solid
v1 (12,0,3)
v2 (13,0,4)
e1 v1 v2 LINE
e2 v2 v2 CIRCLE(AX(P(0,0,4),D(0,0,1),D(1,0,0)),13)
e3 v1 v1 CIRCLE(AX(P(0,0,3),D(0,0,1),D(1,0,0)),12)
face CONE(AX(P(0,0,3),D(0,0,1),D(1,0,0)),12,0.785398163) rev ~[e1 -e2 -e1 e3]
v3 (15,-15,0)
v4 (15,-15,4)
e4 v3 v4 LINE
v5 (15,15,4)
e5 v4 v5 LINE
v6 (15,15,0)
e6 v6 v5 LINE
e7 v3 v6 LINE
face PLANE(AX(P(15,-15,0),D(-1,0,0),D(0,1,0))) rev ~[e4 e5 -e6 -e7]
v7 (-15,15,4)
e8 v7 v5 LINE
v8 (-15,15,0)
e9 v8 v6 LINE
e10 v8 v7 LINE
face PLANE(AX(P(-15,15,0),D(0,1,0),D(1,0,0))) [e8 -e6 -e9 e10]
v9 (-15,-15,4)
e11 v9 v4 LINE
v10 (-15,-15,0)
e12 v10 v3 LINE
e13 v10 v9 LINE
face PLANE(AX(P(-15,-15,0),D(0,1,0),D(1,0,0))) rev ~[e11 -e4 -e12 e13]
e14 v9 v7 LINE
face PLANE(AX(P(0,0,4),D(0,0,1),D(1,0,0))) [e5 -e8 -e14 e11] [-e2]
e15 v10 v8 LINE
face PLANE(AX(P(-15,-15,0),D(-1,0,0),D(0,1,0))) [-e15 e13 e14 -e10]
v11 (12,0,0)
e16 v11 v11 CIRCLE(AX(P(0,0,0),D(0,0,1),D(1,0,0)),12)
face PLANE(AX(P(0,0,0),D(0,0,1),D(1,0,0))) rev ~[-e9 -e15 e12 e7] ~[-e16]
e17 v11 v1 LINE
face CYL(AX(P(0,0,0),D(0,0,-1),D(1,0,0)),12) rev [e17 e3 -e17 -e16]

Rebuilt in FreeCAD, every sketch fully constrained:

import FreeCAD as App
import Part
import Sketcher
Q = App.Units.Quantity


def edges_at(feature, points):
    """Names of the edges that pass closest to the given points."""
    edges = feature.Shape.Edges
    near = lambda p: min(range(len(edges)), key=lambda i: edges[i].distToShape(Part.Vertex(*p))[0])
    return sorted({f"Edge{near(p) + 1}" for p in points})

doc = App.newDocument("Part")
body = doc.addObject("PartDesign::Body", "Body")

# Sketch on XY plane
sketch1 = doc.addObject("Sketcher::SketchObject", "Sketch")
body.addObject(sketch1)
sketch1.AttachmentSupport = (doc.XY_Plane, [""])
sketch1.MapMode = "FlatFace"
sketch1.addGeometry([
    Part.LineSegment(App.Vector(-15, 15, 0), App.Vector(-15, -15, 0)),  # 0
    Part.LineSegment(App.Vector(-15, -15, 0), App.Vector(15, -15, 0)),  # 1
    Part.LineSegment(App.Vector(15, -15, 0), App.Vector(15, 15, 0)),  # 2
    Part.LineSegment(App.Vector(15, 15, 0), App.Vector(-15, 15, 0)),  # 3
    Part.Circle(App.Vector(0, 0, 0), App.Vector(0, 0, 1), 12),  # 4
], False)
sketch1.addConstraint([
    Sketcher.Constraint("Coincident", 0, 2, 1, 1),
    Sketcher.Constraint("Coincident", 1, 2, 2, 1),
    Sketcher.Constraint("Coincident", 2, 2, 3, 1),
    Sketcher.Constraint("Coincident", 3, 2, 0, 1),
    Sketcher.Constraint("Vertical", 0),
    Sketcher.Constraint("Horizontal", 1),
    Sketcher.Constraint("Vertical", 2),
    Sketcher.Constraint("Horizontal", 3),
    Sketcher.Constraint("Coincident", 4, 3, -1, 1),
    Sketcher.Constraint("Symmetric", 0, 2, 2, 2, -1, 1),
    Sketcher.Constraint("Equal", 3, 0),
    Sketcher.Constraint("Diameter", 4, Q("24 mm")),
    Sketcher.Constraint("DistanceX", 1, 1, 1, 2, Q("30 mm")),
])
pad1 = doc.addObject("PartDesign::Pad", "Pad")
body.addObject(pad1)
pad1.Profile = sketch1
pad1.Length = 4
doc.recompute()

chamfer = doc.addObject("PartDesign::Chamfer", "Chamfer")
body.addObject(chamfer)
chamfer.Base = (pad1, edges_at(pad1, [(-12, 0, 4)]))
chamfer.Size = 1

doc.recompute()
